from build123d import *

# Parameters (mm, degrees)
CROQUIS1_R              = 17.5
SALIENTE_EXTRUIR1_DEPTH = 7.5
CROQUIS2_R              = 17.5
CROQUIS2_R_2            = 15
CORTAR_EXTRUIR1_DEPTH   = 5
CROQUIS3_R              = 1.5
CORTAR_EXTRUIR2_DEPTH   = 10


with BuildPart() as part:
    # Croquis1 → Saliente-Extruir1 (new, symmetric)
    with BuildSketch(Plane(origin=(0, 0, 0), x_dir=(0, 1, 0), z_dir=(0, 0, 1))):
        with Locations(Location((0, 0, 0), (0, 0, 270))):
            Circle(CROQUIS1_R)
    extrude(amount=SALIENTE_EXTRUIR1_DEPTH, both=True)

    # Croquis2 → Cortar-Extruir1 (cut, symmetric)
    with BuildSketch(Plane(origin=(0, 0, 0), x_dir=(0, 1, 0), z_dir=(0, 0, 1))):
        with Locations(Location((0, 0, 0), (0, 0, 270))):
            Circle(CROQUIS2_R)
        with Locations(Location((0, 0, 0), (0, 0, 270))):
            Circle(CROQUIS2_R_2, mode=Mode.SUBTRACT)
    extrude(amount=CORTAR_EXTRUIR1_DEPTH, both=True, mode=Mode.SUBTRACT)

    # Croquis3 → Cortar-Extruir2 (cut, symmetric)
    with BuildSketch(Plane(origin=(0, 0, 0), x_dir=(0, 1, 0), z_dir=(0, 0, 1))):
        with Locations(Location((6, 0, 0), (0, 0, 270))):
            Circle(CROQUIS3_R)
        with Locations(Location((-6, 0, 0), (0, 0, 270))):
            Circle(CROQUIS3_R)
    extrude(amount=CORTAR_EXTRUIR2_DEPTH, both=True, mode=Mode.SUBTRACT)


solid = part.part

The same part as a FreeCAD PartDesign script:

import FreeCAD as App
import Part
import Sketcher
from FreeCAD import Vector

doc = App.newDocument("Part")
body = doc.addObject("PartDesign::Body", "Body")

# Sketch on XY plane
sketch1 = doc.addObject("Sketcher::SketchObject", "Sketch")
body.addObject(sketch1)
sketch1.AttachmentSupport = (doc.XY_Plane, [""])
sketch1.MapMode = "FlatFace"
sketch1.addGeometry(Part.Circle(Vector(0, 0, 0), Vector(0, 0, 1), 18), False)
sketch1.addConstraint(Sketcher.Constraint("Coincident", 0, 3, -1, 1))
sketch1.addConstraint(Sketcher.Constraint("Diameter", 0, 35.0))
pad1 = doc.addObject("PartDesign::Pad", "Pad")
body.addObject(pad1)
pad1.Profile = sketch1
pad1.Length = 15
pad1.Midplane = True

# Sketch on XY plane
sketch2 = doc.addObject("Sketcher::SketchObject", "Sketch001")
body.addObject(sketch2)
sketch2.AttachmentSupport = (doc.XY_Plane, [""])
sketch2.MapMode = "FlatFace"
sketch2.addGeometry(Part.Circle(Vector(0, 0, 0), Vector(0, 0, 1), 18), False)
sketch2.addGeometry(Part.Circle(Vector(0, 0, 0), Vector(0, 0, 1), 15), False)
sketch2.addConstraint(Sketcher.Constraint("Coincident", 0, 3, -1, 1))
sketch2.addConstraint(Sketcher.Constraint("Coincident", 1, 3, -1, 1))
sketch2.addConstraint(Sketcher.Constraint("Diameter", 0, 35.0))
sketch2.addConstraint(Sketcher.Constraint("Diameter", 1, 30.0))
pocket1 = doc.addObject("PartDesign::Pocket", "Pocket")
body.addObject(pocket1)
pocket1.Profile = sketch2
pocket1.Length = 10
pocket1.Midplane = True

# Sketch on XY plane
sketch3 = doc.addObject("Sketcher::SketchObject", "Sketch002")
body.addObject(sketch3)
sketch3.AttachmentSupport = (doc.XY_Plane, [""])
sketch3.MapMode = "FlatFace"
sketch3.addGeometry(Part.Circle(Vector(0, 6, 0), Vector(0, 0, 1), 1.5), False)
sketch3.addGeometry(Part.Circle(Vector(0, -6, 0), Vector(0, 0, 1), 1.5), False)
sketch3.addConstraint(Sketcher.Constraint("Equal", 0, 1))
sketch3.addConstraint(Sketcher.Constraint("Symmetric", 0, 3, 1, 3, -1, 1))
sketch3.addConstraint(Sketcher.Constraint("PointOnObject", 0, 3, -2))
sketch3.addConstraint(Sketcher.Constraint("Diameter", 0, 3.0))
sketch3.addConstraint(Sketcher.Constraint("DistanceY", -1, 1, 0, 3, 6.0))
pocket2 = doc.addObject("PartDesign::Pocket", "Pocket001")
body.addObject(pocket2)
pocket2.Profile = sketch3
pocket2.Length = 20
pocket2.Midplane = True

doc.recompute()
